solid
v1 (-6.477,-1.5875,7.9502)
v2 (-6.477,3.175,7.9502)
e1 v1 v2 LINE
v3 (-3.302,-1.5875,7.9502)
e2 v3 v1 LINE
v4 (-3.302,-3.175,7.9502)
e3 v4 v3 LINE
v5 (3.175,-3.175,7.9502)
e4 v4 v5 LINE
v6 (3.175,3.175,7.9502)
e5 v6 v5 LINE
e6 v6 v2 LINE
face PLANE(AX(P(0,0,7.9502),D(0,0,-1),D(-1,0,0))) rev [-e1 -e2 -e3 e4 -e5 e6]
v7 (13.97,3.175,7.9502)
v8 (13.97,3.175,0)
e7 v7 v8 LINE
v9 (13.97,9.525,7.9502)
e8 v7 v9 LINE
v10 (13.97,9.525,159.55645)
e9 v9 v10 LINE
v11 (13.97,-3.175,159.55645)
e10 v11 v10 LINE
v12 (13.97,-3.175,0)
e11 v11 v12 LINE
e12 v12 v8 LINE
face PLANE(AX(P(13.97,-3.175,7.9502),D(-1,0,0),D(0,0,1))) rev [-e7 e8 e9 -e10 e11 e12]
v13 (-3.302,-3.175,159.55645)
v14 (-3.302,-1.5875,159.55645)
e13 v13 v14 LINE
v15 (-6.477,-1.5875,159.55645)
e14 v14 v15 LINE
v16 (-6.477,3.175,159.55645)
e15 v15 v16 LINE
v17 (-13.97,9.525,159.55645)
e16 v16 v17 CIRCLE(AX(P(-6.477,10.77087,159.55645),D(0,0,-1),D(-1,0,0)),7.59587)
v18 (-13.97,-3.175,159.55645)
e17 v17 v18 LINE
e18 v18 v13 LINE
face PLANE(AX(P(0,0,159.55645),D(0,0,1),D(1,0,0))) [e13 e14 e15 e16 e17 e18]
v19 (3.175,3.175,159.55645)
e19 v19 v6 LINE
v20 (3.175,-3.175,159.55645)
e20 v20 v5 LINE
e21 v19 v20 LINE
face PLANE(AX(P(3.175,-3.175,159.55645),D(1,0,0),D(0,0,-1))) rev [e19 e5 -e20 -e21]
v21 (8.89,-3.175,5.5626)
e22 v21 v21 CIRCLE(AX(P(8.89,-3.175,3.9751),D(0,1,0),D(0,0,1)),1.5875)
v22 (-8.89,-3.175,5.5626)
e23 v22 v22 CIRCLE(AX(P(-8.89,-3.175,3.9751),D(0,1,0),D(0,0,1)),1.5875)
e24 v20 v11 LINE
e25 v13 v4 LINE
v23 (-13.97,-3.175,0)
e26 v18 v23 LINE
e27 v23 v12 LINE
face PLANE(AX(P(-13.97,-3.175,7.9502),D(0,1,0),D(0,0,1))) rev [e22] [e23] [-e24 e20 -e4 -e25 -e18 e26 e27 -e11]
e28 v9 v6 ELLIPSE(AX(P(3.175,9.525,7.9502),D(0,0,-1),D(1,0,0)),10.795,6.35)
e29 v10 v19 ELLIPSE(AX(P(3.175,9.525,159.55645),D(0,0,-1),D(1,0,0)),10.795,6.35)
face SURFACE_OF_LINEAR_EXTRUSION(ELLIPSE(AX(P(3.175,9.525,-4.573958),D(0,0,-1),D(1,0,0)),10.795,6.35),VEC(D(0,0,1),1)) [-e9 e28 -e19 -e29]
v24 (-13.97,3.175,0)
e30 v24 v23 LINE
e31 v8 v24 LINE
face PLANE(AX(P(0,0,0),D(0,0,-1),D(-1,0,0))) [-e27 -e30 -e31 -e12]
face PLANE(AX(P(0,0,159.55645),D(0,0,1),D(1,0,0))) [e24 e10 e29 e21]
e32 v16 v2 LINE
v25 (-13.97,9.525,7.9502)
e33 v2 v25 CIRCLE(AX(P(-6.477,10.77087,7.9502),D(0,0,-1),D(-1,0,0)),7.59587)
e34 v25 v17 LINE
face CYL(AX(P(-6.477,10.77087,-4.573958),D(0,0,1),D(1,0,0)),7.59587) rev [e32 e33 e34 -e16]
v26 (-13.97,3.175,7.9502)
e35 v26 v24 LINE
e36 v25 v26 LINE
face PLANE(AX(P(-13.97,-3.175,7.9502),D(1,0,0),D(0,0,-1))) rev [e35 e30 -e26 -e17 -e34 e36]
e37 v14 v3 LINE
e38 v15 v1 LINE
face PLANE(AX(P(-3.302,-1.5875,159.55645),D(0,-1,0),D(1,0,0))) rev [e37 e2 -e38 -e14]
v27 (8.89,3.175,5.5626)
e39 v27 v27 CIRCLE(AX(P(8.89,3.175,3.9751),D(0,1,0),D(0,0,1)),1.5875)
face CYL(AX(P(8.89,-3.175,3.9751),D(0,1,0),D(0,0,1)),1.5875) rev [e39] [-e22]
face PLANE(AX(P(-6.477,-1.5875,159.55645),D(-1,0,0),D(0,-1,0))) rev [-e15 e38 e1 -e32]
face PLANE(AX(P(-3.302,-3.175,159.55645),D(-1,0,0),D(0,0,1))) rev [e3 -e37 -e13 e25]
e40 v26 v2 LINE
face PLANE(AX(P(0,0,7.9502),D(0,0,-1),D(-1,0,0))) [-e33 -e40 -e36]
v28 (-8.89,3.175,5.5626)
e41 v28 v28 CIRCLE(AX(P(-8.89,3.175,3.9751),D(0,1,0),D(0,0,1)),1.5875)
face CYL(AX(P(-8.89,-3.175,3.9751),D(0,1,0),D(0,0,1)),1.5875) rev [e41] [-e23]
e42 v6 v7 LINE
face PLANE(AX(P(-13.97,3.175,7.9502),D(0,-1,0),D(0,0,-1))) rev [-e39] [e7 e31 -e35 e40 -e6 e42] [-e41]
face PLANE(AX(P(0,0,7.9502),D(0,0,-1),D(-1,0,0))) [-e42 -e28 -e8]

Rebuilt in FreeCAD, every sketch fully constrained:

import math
import FreeCAD as App
import Part
import Sketcher
Q = App.Units.Quantity

doc = App.newDocument("Part")
params = doc.addObject("Spreadsheet::Sheet", "Params")
for row, (alias, value) in enumerate([
    ("sketch1_width", "1.1 in"),
    ("sketch1_height", "0.25 in"),
    ("pad1_length", "0.313 in"),
    ("sketch2_width", "0.42 in"),
    ("sketch2_height", "0.25 in"),
    ("sketch2_width2", "0.125 in"),
    ("sketch2_width3", "0.425 in"),
    ("sketch2_height2", "0.0625 in"),
    ("pad2_length", "5.96875 in"),
    ("sketch3_diameter", "0.125 in"),
    ("sketch4_height", "0.25 in"),
    ("sketch4_width", "0.295 in"),
    ("pad3_length", "5.96875 in"),
], start=1):
    params.set(f"A{row}", alias)
    params.set(f"B{row}", "=" + value)
    params.setAlias(f"B{row}", alias)

body = doc.addObject("PartDesign::Body", "Body")

# Sketch on XY plane
sketch1 = body.newObject("Sketcher::SketchObject", "Sketch")
sketch1.AttachmentSupport = (doc.getObject("XY_Plane"), [""])
sketch1.MapMode = "FlatFace"
sketch1.addGeometry(Part.LineSegment(App.Vector(-14, 3, 0), App.Vector(-14, -3, 0)), False)
sketch1.addGeometry(Part.LineSegment(App.Vector(-14, -3, 0), App.Vector(14, -3, 0)), False)
sketch1.addGeometry(Part.LineSegment(App.Vector(14, -3, 0), App.Vector(14, 3, 0)), False)
sketch1.addGeometry(Part.LineSegment(App.Vector(14, 3, 0), App.Vector(-14, 3, 0)), False)
sketch1.addConstraint(Sketcher.Constraint("Coincident", 0, 2, 1, 1))
sketch1.addConstraint(Sketcher.Constraint("Coincident", 1, 2, 2, 1))
sketch1.addConstraint(Sketcher.Constraint("Coincident", 2, 2, 3, 1))
sketch1.addConstraint(Sketcher.Constraint("Coincident", 3, 2, 0, 1))
sketch1.addConstraint(Sketcher.Constraint("Vertical", 0))
sketch1.addConstraint(Sketcher.Constraint("Horizontal", 1))
sketch1.addConstraint(Sketcher.Constraint("Vertical", 2))
sketch1.addConstraint(Sketcher.Constraint("Horizontal", 3))
sketch1.addConstraint(Sketcher.Constraint("Symmetric", 0, 2, 2, 2, -1, 1))
sketch1.addConstraint(Sketcher.Constraint("DistanceX", 1, 1, 1, 2, Q("1.1 in")))
sketch1.addConstraint(Sketcher.Constraint("DistanceY", 0, 2, 0, 1, Q("0.25 in")))
sketch1.setExpression("Constraints[9]", "Params.sketch1_width")
sketch1.setExpression("Constraints[10]", "Params.sketch1_height")
pad1 = body.newObject("PartDesign::Pad", "Pad")
pad1.Profile = sketch1
pad1.setExpression("Length", "Params.pad1_length")

# Sketch on XY plane
sketch2 = body.newObject("Sketcher::SketchObject", "Sketch001")
sketch2.AttachmentSupport = (doc.getObject("XY_Plane"), [""])
sketch2.MapMode = "FlatFace"
sketch2.AttachmentOffset = App.Placement(App.Vector(0, 0, 0.313 * 25.4), App.Rotation())
sketch2.addGeometry(Part.LineSegment(App.Vector(-3.3, -3.2, 0), App.Vector(-3.3, -1.6, 0)), False)
sketch2.addGeometry(Part.LineSegment(App.Vector(-3.3, -1.6, 0), App.Vector(-6.5, -1.6, 0)), False)
sketch2.addGeometry(Part.LineSegment(App.Vector(-6.5, -1.6, 0), App.Vector(-6.5, 3.2, 0)), False)
sketch2.addGeometry(Part.LineSegment(App.Vector(-6.5, 3.2, 0), App.Vector(-14, 3.2, 0)), False)
sketch2.addGeometry(Part.LineSegment(App.Vector(-14, 3.2, 0), App.Vector(-14, -3.2, 0)), False)
sketch2.addGeometry(Part.LineSegment(App.Vector(-14, -3.2, 0), App.Vector(-3.3, -3.2, 0)), False)
sketch2.addGeometry(Part.LineSegment(App.Vector(3.2, 3.2, 0), App.Vector(3.2, -3.2, 0)), False)
sketch2.addGeometry(Part.LineSegment(App.Vector(3.2, -3.2, 0), App.Vector(14, -3.2, 0)), False)
sketch2.addGeometry(Part.LineSegment(App.Vector(14, -3.2, 0), App.Vector(14, 3.2, 0)), False)
sketch2.addGeometry(Part.LineSegment(App.Vector(14, 3.2, 0), App.Vector(3.2, 3.2, 0)), False)
sketch2.addConstraint(Sketcher.Constraint("Coincident", 0, 2, 1, 1))
sketch2.addConstraint(Sketcher.Constraint("Coincident", 1, 2, 2, 1))
sketch2.addConstraint(Sketcher.Constraint("Coincident", 2, 2, 3, 1))
sketch2.addConstraint(Sketcher.Constraint("Coincident", 3, 2, 4, 1))
sketch2.addConstraint(Sketcher.Constraint("Coincident", 4, 2, 5, 1))
sketch2.addConstraint(Sketcher.Constraint("Coincident", 5, 2, 0, 1))
sketch2.addConstraint(Sketcher.Constraint("Coincident", 6, 2, 7, 1))
sketch2.addConstraint(Sketcher.Constraint("Coincident", 7, 2, 8, 1))
sketch2.addConstraint(Sketcher.Constraint("Coincident", 8, 2, 9, 1))
sketch2.addConstraint(Sketcher.Constraint("Coincident", 9, 2, 6, 1))
sketch2.addConstraint(Sketcher.Constraint("Vertical", 0))
sketch2.addConstraint(Sketcher.Constraint("Horizontal", 1))
sketch2.addConstraint(Sketcher.Constraint("Vertical", 2))
sketch2.addConstraint(Sketcher.Constraint("Horizontal", 3))
sketch2.addConstraint(Sketcher.Constraint("Vertical", 4))
sketch2.addConstraint(Sketcher.Constraint("Horizontal", 5))
sketch2.addConstraint(Sketcher.Constraint("Vertical", 6))
sketch2.addConstraint(Sketcher.Constraint("Horizontal", 7))
sketch2.addConstraint(Sketcher.Constraint("Vertical", 8))
sketch2.addConstraint(Sketcher.Constraint("Horizontal", 9))
sketch2.addConstraint(Sketcher.Constraint("Symmetric", 3, 2, 7, 2, -1, 1))
sketch2.addConstraint(Sketcher.Constraint("Horizontal", 5, 2, 6, 2))
sketch2.addConstraint(Sketcher.Constraint("Horizontal", 3, 2, 8, 2))
sketch2.addConstraint(Sketcher.Constraint("DistanceX", 5, 1, 5, 2, Q("0.42 in")))
sketch2.addConstraint(Sketcher.Constraint("DistanceY", 4, 2, 4, 1, Q("0.25 in")))
sketch2.addConstraint(Sketcher.Constraint("DistanceX", 1, 2, 1, 1, Q("0.125 in")))
sketch2.addConstraint(Sketcher.Constraint("DistanceX", 7, 1, 7, 2, Q("0.425 in")))
sketch2.addConstraint(Sketcher.Constraint("DistanceY", 0, 1, 0, 2, Q("0.0625 in")))
sketch2.addConstraint(Sketcher.Constraint("DistanceX", 0, 2, -1, 1, Q("0.13 in")))
sketch2.setExpression("Constraints[23]", "Params.sketch2_width")
sketch2.setExpression("Constraints[24]", "Params.sketch2_height")
sketch2.setExpression("Constraints[25]", "Params.sketch2_width2")
sketch2.setExpression("Constraints[26]", "Params.sketch2_width3")
sketch2.setExpression("Constraints[27]", "Params.sketch2_height2")
pad2 = body.newObject("PartDesign::Pad", "Pad001")
pad2.Profile = sketch2
pad2.setExpression("Length", "Params.pad2_length")

# Sketch on XZ plane
sketch3 = body.newObject("Sketcher::SketchObject", "Sketch002")
sketch3.AttachmentSupport = (doc.getObject("XZ_Plane"), [""])
sketch3.MapMode = "FlatFace"
sketch3.AttachmentOffset = App.Placement(App.Vector(0, 0, -0.125 * 25.4), App.Rotation())
sketch3.addGeometry(Part.Circle(App.Vector(-8.9, 4, 0), App.Vector(0, 0, 1), 1.6), False)
sketch3.addGeometry(Part.Circle(App.Vector(8.9, 4, 0), App.Vector(0, 0, 1), 1.6), False)
sketch3.addConstraint(Sketcher.Constraint("Equal", 0, 1))
sketch3.addConstraint(Sketcher.Constraint("Symmetric", 0, 3, 1, 3, -2))
sketch3.addConstraint(Sketcher.Constraint("Diameter", 0, Q("0.125 in")))
sketch3.addConstraint(Sketcher.Constraint("DistanceX", 0, 3, 1, 3, Q("0.7 in")))
sketch3.addConstraint(Sketcher.Constraint("DistanceY", -1, 1, 0, 3, Q("0.1565 in")))
sketch3.setExpression("Constraints[2]", "Params.sketch3_diameter")
pocket1 = body.newObject("PartDesign::Pocket", "Pocket")
pocket1.Profile = sketch3
pocket1.Type = "ThroughAll"
pocket1.Reversed = True

# Sketch on XY plane
sketch4 = body.newObject("Sketcher::SketchObject", "Sketch003")
sketch4.AttachmentSupport = (doc.getObject("XY_Plane"), [""])
sketch4.MapMode = "FlatFace"
sketch4.AttachmentOffset = App.Placement(App.Vector(0, 0, 159.55645), App.Rotation())
sketch4.addGeometry(Part.LineSegment(App.Vector(-13.97, 9.525, 0), App.Vector(-13.97, 3.175, 0)), False)
sketch4.addGeometry(Part.LineSegment(App.Vector(-13.97, 3.175, 0), App.Vector(-6.477, 3.175, 0)), False)
sketch4.addGeometry(Part.ArcOfCircle(Part.Circle(App.Vector(-6.477, 10.77087, 0), App.Vector(0, 0, 1), 7.59587), math.radians(-170.559726), math.radians(-90)), False)
sketch4.addGeometry(Part.LineSegment(App.Vector(3.175, 3.175, 0), App.Vector(13.97, 3.175, 0)), False)
sketch4.addGeometry(Part.LineSegment(App.Vector(13.97, 3.175, 0), App.Vector(13.97, 9.525, 0)), False)
sketch4.addGeometry(Part.BSplineCurve([App.Vector(3.175, 3.175, 0), App.Vector(13.97, 3.175, 0), App.Vector(13.97, 9.525, 0)], [3, 3], [4.71238898, 6.283185307], False, 2, [1, 0.707106781, 1], False), False)
sketch4.addConstraint(Sketcher.Constraint("Block", 5))
sketch4.addConstraint(Sketcher.Constraint("Coincident", 0, 2, 1, 1))
sketch4.addConstraint(Sketcher.Constraint("Coincident", 1, 2, 2, 2))
sketch4.addConstraint(Sketcher.Constraint("Coincident", 2, 1, 0, 1))
sketch4.addConstraint(Sketcher.Constraint("Coincident", 3, 2, 4, 1))
sketch4.addConstraint(Sketcher.Constraint("Coincident", 4, 2, 5, 2))
sketch4.addConstraint(Sketcher.Constraint("Coincident", 5, 1, 3, 1))
sketch4.addConstraint(Sketcher.Constraint("Vertical", 0))
sketch4.addConstraint(Sketcher.Constraint("Horizontal", 1))
sketch4.addConstraint(Sketcher.Constraint("Horizontal", 3))
sketch4.addConstraint(Sketcher.Constraint("Vertical", 4))
sketch4.addConstraint(Sketcher.Constraint("DistanceY", 0, 2, 0, 1, Q("0.25 in")))
sketch4.addConstraint(Sketcher.Constraint("DistanceX", 0, 2, 3, 2, Q("1.1 in")))
sketch4.addConstraint(Sketcher.Constraint("DistanceX", 1, 1, 1, 2, Q("0.295 in")))
sketch4.addConstraint(Sketcher.Constraint("DistanceY", 3, 2, 2, 1, Q("0.25 in")))
sketch4.addConstraint(Sketcher.Constraint("DistanceX", 2, 3, -1, 1, Q("0.255 in")))
sketch4.setExpression("Constraints[11]", "Params.sketch4_height")
sketch4.setExpression("Constraints[13]", "Params.sketch4_width")
pad3 = body.newObject("PartDesign::Pad", "Pad002")
pad3.Profile = sketch4
pad3.setExpression("Length", "Params.pad3_length")
pad3.Reversed = True

doc.recompute()
